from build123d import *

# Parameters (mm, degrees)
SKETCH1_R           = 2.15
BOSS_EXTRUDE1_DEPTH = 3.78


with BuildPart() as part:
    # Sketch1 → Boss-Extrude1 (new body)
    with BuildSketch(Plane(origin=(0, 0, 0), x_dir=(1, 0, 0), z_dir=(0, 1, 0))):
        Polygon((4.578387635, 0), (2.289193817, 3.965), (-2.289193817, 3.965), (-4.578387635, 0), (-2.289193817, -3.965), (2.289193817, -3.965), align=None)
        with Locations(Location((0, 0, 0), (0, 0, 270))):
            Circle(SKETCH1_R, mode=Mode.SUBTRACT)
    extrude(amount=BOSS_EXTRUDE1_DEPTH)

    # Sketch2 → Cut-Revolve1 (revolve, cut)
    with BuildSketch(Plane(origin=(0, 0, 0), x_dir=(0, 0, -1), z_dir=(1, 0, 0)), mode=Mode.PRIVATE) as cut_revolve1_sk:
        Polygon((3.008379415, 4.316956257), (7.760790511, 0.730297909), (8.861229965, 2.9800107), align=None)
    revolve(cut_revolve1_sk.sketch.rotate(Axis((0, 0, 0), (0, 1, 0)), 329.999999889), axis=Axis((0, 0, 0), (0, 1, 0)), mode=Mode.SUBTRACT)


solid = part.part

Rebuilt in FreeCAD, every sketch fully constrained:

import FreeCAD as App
import Part
import Sketcher
Q = App.Units.Quantity

doc = App.newDocument("Part")
params = doc.addObject("Spreadsheet::Sheet", "Params")
for row, (alias, value) in enumerate([
    ("sketch1_diameter", "4.3 mm"),
    ("pad1_length", "3.78 mm"),
    ("groove_angle", "360 deg"),
], start=1):
    params.set(f"A{row}", alias)
    params.set(f"B{row}", "=" + value)
    params.setAlias(f"B{row}", alias)

body = doc.addObject("PartDesign::Body", "Body")

# Sketch on XZ plane
sketch1 = body.newObject("Sketcher::SketchObject", "Sketch")
sketch1.AttachmentSupport = (doc.getObject("XZ_Plane"), [""])
sketch1.MapMode = "FlatFace"
sketch1.addGeometry([
    Part.LineSegment(App.Vector(4.6, 0, 0), App.Vector(2.3, -4, 0)),  # 0
    Part.LineSegment(App.Vector(2.3, -4, 0), App.Vector(-2.3, -4, 0)),  # 1
    Part.LineSegment(App.Vector(-2.3, -4, 0), App.Vector(-4.6, 0, 0)),  # 2
    Part.LineSegment(App.Vector(-4.6, 0, 0), App.Vector(-2.3, 4, 0)),  # 3
    Part.LineSegment(App.Vector(-2.3, 4, 0), App.Vector(2.3, 4, 0)),  # 4
    Part.LineSegment(App.Vector(2.3, 4, 0), App.Vector(4.6, 0, 0)),  # 5
    Part.Circle(App.Vector(0, 0, 0), App.Vector(0, 0, 1), 2.1),  # 6
], False)
sketch1.addConstraint([
    Sketcher.Constraint("Coincident", 0, 2, 1, 1),
    Sketcher.Constraint("Coincident", 1, 2, 2, 1),
    Sketcher.Constraint("Coincident", 2, 2, 3, 1),
    Sketcher.Constraint("Coincident", 3, 2, 4, 1),
    Sketcher.Constraint("Coincident", 4, 2, 5, 1),
    Sketcher.Constraint("Coincident", 5, 2, 0, 1),
    Sketcher.Constraint("Horizontal", 1),
    Sketcher.Constraint("Horizontal", 4),
    Sketcher.Constraint("Coincident", 6, 3, -1, 1),
    Sketcher.Constraint("Symmetric", 0, 2, 3, 2, -1, 1),
    Sketcher.Constraint("Symmetric", 2, 2, 5, 2, -1, 1),
    Sketcher.Constraint("PointOnObject", 2, 2, -1),
    Sketcher.Constraint("Parallel", 2, 5),
    Sketcher.Constraint("Vertical", 1, 2, 3, 2),
    Sketcher.Constraint("Diameter", 6, 4.3),
    Sketcher.Constraint("Angle", 0, Q("-120 deg")),
    Sketcher.Constraint("DistanceY", 1, 2, 3, 2, 7.93),
    Sketcher.Constraint("DistanceX", 1, 2, 1, 1, 4.578388),
])
sketch1.setExpression("Constraints[14]", "Params.sketch1_diameter")
pad1 = body.newObject("PartDesign::Pad", "Pad")
pad1.Profile = sketch1
pad1.setExpression("Length", "Params.pad1_length")
pad1.Reversed = True

# Sketch on YZ plane
sketch2 = body.newObject("Sketcher::SketchObject", "Sketch001")
sketch2.AttachmentSupport = (doc.getObject("YZ_Plane"), [""])
sketch2.MapMode = "FlatFace"
sketch2.addGeometry([
    Part.LineSegment(App.Vector(4.3, -3, 0), App.Vector(0.7, -7.8, 0)),
    Part.LineSegment(App.Vector(0.7, -7.8, 0), App.Vector(3, -8.9, 0)),
    Part.LineSegment(App.Vector(3, -8.9, 0), App.Vector(4.3, -3, 0)),
], False)
sketch2.addConstraint([
    Sketcher.Constraint("Coincident", 0, 2, 1, 1),
    Sketcher.Constraint("Coincident", 1, 2, 2, 1),
    Sketcher.Constraint("Coincident", 2, 2, 0, 1),
    Sketcher.Constraint("Distance", 0, 5.953951),
    Sketcher.Constraint("Distance", 1, 2.504431),
    Sketcher.Constraint("DistanceY", 0, 2, -1, 1, 7.760791),
    Sketcher.Constraint("DistanceX", -1, 1, 1, 2, 2.980011),
    Sketcher.Constraint("DistanceY", 1, 2, -1, 1, 8.86123),
    Sketcher.Constraint("DistanceY", 2, 2, -1, 1, 3.008379),
])
groove = body.newObject("PartDesign::Groove", "Groove")
groove.Profile = sketch2
groove.ReferenceAxis = (sketch2, ["H_Axis"])
groove.setExpression("Angle", "Params.groove_angle")

doc.recompute()
